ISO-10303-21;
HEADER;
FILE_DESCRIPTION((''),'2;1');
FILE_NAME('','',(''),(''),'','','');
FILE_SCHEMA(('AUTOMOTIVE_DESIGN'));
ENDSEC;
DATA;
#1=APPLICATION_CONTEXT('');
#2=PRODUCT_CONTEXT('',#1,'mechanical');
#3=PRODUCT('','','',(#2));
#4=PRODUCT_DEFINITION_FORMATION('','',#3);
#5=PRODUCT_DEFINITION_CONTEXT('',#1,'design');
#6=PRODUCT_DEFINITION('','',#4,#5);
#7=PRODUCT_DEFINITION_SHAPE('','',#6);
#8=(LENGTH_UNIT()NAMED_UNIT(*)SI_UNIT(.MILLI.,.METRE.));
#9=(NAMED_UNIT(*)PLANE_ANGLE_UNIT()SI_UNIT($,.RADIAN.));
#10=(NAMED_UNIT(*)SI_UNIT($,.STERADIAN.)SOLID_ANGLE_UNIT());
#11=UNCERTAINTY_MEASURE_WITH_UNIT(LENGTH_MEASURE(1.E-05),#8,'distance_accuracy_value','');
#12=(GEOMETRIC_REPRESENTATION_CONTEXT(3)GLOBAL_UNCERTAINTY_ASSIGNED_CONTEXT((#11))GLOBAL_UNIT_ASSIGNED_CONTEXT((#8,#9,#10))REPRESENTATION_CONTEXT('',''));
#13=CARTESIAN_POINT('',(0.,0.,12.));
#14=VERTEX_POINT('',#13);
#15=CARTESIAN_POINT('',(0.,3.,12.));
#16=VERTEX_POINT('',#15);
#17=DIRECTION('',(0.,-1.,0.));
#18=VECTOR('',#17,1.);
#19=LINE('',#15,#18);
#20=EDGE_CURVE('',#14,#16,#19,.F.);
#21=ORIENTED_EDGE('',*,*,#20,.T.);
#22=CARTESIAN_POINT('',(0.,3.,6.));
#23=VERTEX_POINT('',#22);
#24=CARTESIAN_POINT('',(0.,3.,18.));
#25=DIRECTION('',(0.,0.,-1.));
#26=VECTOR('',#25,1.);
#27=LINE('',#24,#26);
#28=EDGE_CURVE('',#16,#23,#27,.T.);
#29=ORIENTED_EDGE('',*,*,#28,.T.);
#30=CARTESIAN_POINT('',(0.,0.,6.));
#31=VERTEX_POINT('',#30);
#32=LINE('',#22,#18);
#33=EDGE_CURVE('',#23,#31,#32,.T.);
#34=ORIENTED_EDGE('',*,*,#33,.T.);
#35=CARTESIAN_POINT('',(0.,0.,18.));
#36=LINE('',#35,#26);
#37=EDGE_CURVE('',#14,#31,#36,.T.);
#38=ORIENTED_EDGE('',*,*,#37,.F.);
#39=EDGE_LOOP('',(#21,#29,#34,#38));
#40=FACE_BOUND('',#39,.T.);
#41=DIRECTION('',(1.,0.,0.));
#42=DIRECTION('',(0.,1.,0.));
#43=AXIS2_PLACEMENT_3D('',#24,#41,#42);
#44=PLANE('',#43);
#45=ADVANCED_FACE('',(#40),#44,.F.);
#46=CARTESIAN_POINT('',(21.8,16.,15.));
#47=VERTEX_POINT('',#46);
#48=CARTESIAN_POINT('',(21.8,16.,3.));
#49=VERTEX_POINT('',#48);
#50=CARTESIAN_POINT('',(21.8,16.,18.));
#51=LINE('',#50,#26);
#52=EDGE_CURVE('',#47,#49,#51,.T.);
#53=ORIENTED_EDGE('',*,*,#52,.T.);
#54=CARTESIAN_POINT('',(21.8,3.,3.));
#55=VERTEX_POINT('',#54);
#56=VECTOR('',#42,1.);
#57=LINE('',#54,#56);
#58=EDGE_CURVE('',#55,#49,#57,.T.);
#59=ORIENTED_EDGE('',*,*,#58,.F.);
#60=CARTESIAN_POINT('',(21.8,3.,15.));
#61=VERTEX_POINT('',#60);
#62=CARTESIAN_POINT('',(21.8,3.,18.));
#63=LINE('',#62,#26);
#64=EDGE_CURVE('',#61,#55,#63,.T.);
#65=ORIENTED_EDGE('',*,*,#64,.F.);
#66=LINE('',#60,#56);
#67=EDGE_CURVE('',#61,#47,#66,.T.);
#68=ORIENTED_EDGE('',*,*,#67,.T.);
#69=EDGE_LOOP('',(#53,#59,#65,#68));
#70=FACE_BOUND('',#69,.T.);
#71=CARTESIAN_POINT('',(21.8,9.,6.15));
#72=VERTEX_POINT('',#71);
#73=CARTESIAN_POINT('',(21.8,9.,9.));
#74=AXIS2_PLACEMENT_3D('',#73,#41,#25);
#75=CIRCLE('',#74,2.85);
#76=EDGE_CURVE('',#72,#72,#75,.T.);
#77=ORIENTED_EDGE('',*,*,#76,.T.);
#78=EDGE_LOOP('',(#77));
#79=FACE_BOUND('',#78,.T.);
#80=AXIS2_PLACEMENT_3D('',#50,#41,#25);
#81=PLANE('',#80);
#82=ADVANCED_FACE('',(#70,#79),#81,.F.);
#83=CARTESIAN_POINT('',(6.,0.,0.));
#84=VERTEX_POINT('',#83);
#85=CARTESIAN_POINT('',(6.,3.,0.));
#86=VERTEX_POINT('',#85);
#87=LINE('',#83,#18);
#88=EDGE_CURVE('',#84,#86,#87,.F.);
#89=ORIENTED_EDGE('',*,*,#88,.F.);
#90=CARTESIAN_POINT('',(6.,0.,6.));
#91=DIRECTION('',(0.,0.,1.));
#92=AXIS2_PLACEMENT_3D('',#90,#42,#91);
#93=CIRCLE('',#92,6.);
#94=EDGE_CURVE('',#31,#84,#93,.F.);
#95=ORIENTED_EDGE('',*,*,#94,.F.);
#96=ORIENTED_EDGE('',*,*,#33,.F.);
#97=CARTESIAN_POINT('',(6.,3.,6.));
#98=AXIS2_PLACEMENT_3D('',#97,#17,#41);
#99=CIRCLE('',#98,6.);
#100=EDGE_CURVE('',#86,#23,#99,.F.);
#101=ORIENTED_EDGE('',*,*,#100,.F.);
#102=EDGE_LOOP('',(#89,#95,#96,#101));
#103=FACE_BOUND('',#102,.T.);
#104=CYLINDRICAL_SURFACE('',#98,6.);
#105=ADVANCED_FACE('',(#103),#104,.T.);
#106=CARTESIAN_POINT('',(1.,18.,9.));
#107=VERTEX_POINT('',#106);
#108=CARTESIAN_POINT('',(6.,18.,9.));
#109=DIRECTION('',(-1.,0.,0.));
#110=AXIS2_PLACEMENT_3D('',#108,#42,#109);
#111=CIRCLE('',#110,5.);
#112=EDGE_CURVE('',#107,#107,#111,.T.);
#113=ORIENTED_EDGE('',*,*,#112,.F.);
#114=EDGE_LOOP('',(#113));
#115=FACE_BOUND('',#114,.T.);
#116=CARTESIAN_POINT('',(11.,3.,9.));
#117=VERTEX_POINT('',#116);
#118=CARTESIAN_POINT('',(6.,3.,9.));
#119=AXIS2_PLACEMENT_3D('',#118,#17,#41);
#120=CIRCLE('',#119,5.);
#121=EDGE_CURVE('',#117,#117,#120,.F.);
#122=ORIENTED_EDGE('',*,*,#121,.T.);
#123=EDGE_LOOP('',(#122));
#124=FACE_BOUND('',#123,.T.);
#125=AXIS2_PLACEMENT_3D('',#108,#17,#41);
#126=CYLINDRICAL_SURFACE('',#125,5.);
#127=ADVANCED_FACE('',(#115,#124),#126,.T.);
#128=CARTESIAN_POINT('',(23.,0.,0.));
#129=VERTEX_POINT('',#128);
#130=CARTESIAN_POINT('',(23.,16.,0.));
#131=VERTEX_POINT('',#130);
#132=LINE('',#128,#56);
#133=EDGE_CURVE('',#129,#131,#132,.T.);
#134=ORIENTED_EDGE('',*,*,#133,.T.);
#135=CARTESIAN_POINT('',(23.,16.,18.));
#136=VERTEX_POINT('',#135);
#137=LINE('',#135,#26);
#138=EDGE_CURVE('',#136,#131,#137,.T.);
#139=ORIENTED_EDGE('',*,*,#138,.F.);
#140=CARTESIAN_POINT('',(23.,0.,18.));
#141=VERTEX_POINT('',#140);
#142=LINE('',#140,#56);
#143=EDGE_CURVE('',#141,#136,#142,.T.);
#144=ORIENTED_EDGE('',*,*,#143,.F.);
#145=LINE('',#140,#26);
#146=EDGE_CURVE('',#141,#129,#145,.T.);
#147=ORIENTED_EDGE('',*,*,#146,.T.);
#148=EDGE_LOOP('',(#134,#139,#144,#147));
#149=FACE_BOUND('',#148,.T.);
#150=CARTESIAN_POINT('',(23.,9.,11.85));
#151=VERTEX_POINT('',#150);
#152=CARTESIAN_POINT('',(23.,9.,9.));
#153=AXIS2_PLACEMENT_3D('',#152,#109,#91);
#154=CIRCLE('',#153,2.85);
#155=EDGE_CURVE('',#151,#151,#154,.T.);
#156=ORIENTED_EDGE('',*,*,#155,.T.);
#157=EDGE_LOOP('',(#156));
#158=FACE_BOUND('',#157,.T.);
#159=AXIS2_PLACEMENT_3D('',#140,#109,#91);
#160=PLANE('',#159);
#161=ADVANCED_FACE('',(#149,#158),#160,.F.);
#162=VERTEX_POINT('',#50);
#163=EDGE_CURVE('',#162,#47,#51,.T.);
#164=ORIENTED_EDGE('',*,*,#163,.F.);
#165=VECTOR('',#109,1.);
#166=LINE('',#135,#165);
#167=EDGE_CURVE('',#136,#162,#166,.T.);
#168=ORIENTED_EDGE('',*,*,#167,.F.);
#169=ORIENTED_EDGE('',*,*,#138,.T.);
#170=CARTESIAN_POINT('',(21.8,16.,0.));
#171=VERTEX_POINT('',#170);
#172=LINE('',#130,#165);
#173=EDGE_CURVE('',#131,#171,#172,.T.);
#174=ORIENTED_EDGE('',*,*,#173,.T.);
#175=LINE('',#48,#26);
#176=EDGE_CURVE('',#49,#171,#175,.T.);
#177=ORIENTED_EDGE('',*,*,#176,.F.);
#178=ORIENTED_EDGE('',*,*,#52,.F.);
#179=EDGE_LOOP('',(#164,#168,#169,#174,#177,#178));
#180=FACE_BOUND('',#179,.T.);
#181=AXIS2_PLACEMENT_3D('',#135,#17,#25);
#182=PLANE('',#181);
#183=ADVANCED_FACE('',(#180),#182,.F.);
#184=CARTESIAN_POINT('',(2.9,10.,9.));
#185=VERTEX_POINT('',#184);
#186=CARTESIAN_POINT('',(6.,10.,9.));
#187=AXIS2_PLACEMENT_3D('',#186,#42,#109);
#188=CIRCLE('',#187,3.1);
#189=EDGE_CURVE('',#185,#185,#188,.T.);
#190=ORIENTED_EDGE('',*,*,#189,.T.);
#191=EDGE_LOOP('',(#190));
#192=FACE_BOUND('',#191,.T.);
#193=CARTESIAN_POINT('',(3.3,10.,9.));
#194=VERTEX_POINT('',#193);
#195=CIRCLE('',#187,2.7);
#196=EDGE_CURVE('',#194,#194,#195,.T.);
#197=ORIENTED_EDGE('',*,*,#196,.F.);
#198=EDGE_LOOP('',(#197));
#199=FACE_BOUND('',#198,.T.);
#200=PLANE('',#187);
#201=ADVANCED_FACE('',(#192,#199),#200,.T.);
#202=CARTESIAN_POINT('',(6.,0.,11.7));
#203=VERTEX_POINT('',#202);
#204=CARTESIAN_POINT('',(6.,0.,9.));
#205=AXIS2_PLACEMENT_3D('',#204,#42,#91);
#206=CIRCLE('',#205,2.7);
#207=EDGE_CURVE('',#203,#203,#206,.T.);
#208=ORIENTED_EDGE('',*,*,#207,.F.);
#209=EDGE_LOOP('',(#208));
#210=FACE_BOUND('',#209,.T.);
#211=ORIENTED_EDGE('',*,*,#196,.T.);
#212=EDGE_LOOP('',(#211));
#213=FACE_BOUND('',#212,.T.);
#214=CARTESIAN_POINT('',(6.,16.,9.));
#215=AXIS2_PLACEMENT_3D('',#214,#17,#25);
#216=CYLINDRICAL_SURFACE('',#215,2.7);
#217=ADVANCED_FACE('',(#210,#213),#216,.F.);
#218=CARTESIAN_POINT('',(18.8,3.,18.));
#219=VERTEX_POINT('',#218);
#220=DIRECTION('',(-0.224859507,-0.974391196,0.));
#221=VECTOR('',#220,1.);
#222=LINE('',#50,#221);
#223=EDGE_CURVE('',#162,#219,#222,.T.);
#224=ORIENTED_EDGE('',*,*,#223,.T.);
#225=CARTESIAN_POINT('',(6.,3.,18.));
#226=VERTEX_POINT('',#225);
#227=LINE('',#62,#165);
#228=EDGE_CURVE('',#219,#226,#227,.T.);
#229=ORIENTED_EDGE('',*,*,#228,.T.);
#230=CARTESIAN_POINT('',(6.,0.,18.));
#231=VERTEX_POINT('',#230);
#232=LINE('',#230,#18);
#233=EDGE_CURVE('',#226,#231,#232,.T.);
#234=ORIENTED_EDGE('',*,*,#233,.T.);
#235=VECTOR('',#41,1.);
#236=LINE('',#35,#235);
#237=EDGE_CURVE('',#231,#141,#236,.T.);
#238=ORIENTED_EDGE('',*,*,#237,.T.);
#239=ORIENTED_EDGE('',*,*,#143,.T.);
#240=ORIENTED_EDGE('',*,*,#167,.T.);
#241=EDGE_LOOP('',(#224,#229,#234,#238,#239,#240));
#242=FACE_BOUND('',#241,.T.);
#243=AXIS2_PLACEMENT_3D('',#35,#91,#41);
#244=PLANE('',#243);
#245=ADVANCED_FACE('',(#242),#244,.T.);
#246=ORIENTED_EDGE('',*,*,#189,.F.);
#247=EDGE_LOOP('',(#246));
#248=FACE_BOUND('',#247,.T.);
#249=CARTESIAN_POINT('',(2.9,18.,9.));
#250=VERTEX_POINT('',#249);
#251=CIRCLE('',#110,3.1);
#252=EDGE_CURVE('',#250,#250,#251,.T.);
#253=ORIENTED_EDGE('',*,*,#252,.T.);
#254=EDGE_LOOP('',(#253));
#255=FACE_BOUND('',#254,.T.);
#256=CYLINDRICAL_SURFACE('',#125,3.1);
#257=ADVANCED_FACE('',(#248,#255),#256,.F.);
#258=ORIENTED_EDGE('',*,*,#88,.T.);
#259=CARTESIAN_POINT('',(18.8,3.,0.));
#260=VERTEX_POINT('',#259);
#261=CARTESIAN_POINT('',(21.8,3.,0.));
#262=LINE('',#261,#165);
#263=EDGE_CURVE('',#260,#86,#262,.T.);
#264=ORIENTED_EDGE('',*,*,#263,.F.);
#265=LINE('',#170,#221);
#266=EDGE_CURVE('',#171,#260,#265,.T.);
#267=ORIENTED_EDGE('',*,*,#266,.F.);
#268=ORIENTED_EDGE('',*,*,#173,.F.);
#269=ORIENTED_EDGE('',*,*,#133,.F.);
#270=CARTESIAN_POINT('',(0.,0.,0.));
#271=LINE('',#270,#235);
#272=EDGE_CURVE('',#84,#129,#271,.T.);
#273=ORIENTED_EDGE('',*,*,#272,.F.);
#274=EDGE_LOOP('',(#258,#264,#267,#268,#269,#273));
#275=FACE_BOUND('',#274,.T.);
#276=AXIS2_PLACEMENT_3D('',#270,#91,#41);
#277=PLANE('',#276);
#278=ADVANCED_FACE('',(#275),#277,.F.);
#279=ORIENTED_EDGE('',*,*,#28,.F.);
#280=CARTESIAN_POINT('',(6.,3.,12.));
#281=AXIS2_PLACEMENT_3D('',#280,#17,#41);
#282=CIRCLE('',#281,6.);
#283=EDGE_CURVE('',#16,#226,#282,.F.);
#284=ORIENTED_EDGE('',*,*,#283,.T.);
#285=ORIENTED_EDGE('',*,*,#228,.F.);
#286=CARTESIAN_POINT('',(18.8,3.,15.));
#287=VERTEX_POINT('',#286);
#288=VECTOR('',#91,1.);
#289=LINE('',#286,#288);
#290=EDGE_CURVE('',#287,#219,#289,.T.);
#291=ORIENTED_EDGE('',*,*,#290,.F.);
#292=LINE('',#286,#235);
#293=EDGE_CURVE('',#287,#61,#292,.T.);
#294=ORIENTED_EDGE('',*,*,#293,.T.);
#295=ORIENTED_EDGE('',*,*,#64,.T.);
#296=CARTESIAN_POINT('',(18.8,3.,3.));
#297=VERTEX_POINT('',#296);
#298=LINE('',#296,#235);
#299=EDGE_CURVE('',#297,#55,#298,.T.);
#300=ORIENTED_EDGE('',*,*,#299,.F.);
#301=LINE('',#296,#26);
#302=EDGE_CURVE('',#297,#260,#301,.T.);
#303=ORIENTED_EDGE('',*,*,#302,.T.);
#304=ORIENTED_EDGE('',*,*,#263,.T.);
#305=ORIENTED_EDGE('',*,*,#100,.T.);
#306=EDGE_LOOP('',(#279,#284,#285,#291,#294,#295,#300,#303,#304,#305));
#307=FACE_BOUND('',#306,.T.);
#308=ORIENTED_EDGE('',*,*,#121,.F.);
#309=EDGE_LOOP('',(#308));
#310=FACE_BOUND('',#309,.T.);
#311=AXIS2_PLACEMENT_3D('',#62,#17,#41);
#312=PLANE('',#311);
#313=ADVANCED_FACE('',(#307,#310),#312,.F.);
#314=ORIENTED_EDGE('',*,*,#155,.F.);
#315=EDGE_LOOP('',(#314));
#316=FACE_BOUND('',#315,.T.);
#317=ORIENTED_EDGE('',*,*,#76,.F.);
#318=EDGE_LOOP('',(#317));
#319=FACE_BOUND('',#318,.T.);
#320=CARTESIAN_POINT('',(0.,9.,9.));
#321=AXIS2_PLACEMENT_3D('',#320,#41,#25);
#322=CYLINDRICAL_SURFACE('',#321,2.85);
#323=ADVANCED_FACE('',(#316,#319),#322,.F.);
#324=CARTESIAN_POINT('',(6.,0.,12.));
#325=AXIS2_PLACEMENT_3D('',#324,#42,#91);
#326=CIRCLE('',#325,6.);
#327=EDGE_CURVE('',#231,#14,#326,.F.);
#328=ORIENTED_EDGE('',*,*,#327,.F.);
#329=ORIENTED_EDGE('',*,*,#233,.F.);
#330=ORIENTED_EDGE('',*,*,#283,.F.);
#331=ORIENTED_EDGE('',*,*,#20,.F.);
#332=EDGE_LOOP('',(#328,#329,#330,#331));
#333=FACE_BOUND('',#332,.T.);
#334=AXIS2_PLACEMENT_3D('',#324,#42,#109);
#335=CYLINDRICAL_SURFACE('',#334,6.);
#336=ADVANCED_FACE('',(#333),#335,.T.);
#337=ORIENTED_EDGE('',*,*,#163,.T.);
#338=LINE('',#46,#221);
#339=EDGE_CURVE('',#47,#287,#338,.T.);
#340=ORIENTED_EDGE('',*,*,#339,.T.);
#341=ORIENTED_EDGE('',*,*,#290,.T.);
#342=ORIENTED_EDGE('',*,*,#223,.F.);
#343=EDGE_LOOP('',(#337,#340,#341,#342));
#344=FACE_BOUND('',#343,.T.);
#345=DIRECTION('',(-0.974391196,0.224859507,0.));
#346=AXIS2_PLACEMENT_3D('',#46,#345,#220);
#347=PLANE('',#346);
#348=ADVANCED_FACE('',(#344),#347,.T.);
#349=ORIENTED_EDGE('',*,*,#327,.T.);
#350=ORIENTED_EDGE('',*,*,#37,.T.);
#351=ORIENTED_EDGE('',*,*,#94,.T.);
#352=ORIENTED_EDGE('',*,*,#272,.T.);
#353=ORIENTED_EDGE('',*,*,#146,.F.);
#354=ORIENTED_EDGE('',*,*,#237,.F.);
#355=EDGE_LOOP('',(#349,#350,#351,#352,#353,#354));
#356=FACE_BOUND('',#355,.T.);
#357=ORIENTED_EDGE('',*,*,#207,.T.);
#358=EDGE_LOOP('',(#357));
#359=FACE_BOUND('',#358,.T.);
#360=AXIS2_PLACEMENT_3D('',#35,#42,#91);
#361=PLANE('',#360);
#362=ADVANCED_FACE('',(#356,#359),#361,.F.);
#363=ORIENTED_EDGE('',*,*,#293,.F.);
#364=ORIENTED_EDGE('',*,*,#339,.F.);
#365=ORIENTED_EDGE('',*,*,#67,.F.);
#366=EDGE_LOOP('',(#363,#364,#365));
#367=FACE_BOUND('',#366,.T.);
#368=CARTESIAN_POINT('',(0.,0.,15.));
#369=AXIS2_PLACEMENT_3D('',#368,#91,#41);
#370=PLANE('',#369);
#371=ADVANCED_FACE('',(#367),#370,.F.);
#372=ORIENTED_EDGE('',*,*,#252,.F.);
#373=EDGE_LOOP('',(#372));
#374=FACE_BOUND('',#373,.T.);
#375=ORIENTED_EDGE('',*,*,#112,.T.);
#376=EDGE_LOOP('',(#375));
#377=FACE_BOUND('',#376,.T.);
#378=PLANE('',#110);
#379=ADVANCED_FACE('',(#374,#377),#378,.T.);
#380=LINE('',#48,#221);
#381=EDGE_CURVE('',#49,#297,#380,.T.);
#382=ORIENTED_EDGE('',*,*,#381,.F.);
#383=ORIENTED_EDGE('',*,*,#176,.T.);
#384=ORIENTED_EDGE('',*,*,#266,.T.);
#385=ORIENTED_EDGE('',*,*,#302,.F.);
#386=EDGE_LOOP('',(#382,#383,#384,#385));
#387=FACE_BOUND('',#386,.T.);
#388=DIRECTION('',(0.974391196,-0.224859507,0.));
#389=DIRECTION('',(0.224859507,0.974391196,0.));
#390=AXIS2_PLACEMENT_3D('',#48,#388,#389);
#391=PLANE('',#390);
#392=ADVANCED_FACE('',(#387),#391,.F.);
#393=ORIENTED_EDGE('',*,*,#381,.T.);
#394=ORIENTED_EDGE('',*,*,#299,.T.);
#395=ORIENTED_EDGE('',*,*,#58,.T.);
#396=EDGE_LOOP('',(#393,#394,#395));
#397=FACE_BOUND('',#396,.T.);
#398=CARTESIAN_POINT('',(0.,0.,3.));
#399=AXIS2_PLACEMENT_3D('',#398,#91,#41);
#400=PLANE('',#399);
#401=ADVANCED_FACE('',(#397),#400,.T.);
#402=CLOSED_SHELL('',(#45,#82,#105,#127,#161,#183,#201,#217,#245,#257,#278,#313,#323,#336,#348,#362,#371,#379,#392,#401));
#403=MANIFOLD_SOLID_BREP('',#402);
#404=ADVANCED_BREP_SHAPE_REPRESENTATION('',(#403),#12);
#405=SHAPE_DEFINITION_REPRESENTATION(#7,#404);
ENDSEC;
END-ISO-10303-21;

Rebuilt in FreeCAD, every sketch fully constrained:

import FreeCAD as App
import Part
import Sketcher


def edges_at(feature, points):
    """Names of the edges that pass closest to the given points."""
    edges = feature.Shape.Edges
    near = lambda p: min(range(len(edges)), key=lambda i: edges[i].distToShape(Part.Vertex(*p))[0])
    return sorted({f"Edge{near(p) + 1}" for p in points})


def add_polygon(sketch, points):
    """Adds a closed chain of lines whose ends are joined by coincident constraints."""
    first, n = sketch.GeometryCount, len(points)
    for a, b in zip(points, points[1:] + points[:1]):
        sketch.addGeometry(Part.LineSegment(App.Vector(*a, 0), App.Vector(*b, 0)), False)
    for i in range(n):
        sketch.addConstraint(Sketcher.Constraint("Coincident", first + i, 2, first + (i + 1) % n, 1))

doc = App.newDocument("Part")
params = doc.addObject("Spreadsheet::Sheet", "Params")
for row, (alias, value) in enumerate([
    ("sketch1_width", "23 mm"),
    ("sketch1_height", "16 mm"),
    ("sketch1_height2", "13 mm"),
    ("sketch1_width2", "1.2 mm"),
    ("pad1_length", "18 mm"),
    ("sketch2_diameter", "5.7 mm"),
    ("sketch3_diameter", "5.4 mm"),
    ("sketch4_width", "3 mm"),
    ("sketch4_height", "13 mm"),
    ("pad2_length", "3 mm"),
    ("sketch5_width", "3 mm"),
    ("sketch5_height", "13 mm"),
    ("pad3_length", "3 mm"),
    ("fillet_radius", "6 mm"),
    ("sketch6_diameter", "10 mm"),
    ("sketch6_diameter2", "6.2 mm"),
    ("pad4_length", "15 mm"),
    ("sketch7_diameter", "6.2 mm"),
    ("sketch7_diameter2", "5.4 mm"),
    ("pad5_length", "7 mm"),
], start=1):
    params.set(f"A{row}", alias)
    params.set(f"B{row}", "=" + value)
    params.setAlias(f"B{row}", alias)

body = doc.addObject("PartDesign::Body", "Body")

# Sketch on XY plane
sketch1 = body.newObject("Sketcher::SketchObject", "Sketch")
sketch1.AttachmentSupport = (doc.getObject("XY_Plane"), [""])
sketch1.MapMode = "FlatFace"
add_polygon(sketch1, [(0, 0), (23, 0), (23, 16), (21.8, 16), (21.8, 3), (0, 3)])  # lines 0-5
sketch1.addConstraint(Sketcher.Constraint("Horizontal", 0))
sketch1.addConstraint(Sketcher.Constraint("Vertical", 1))
sketch1.addConstraint(Sketcher.Constraint("Horizontal", 2))
sketch1.addConstraint(Sketcher.Constraint("Vertical", 3))
sketch1.addConstraint(Sketcher.Constraint("Horizontal", 4))
sketch1.addConstraint(Sketcher.Constraint("Vertical", 5))
sketch1.addConstraint(Sketcher.Constraint("Coincident", 5, 2, -1, 1))
sketch1.addConstraint(Sketcher.Constraint("DistanceX", 0, 1, 0, 2, 23.0))
sketch1.addConstraint(Sketcher.Constraint("DistanceY", 1, 1, 1, 2, 16.0))
sketch1.addConstraint(Sketcher.Constraint("DistanceY", 3, 2, 3, 1, 13.0))
sketch1.addConstraint(Sketcher.Constraint("DistanceX", 2, 2, 2, 1, 1.2))
sketch1.setExpression("Constraints[13]", "Params.sketch1_width")
sketch1.setExpression("Constraints[14]", "Params.sketch1_height")
sketch1.setExpression("Constraints[15]", "Params.sketch1_height2")
sketch1.setExpression("Constraints[16]", "Params.sketch1_width2")
pad1 = body.newObject("PartDesign::Pad", "Pad")
pad1.Profile = sketch1
pad1.setExpression("Length", "Params.pad1_length")

# Sketch on YZ plane
sketch2 = body.newObject("Sketcher::SketchObject", "Sketch001")
sketch2.AttachmentSupport = (doc.getObject("YZ_Plane"), [""])
sketch2.MapMode = "FlatFace"
sketch2.AttachmentOffset = App.Placement(App.Vector(0, 0, 23), App.Rotation())
sketch2.addGeometry(Part.Circle(App.Vector(9, 9, 0), App.Vector(0, 0, 1), 2.85), False)
sketch2.addConstraint(Sketcher.Constraint("Diameter", 0, 5.7))
sketch2.addConstraint(Sketcher.Constraint("DistanceX", -1, 1, 0, 3, 9.0))
sketch2.addConstraint(Sketcher.Constraint("DistanceY", -1, 1, 0, 3, 9.0))
sketch2.setExpression("Constraints[0]", "Params.sketch2_diameter")
pocket1 = body.newObject("PartDesign::Pocket", "Pocket")
pocket1.Profile = sketch2
pocket1.Type = "ThroughAll"
pocket1.Midplane = True

# Sketch on XZ plane
sketch3 = body.newObject("Sketcher::SketchObject", "Sketch002")
sketch3.AttachmentSupport = (doc.getObject("XZ_Plane"), [""])
sketch3.MapMode = "FlatFace"
sketch3.addGeometry(Part.Circle(App.Vector(6, 9, 0), App.Vector(0, 0, 1), 2.7), False)
sketch3.addConstraint(Sketcher.Constraint("Diameter", 0, 5.4))
sketch3.addConstraint(Sketcher.Constraint("DistanceX", -1, 1, 0, 3, 6.0))
sketch3.addConstraint(Sketcher.Constraint("DistanceY", -1, 1, 0, 3, 9.0))
sketch3.setExpression("Constraints[0]", "Params.sketch3_diameter")
pocket2 = body.newObject("PartDesign::Pocket", "Pocket001")
pocket2.Profile = sketch3
pocket2.Type = "ThroughAll"
pocket2.Midplane = True

# Sketch on XY plane
sketch4 = body.newObject("Sketcher::SketchObject", "Sketch003")
sketch4.AttachmentSupport = (doc.getObject("XY_Plane"), [""])
sketch4.MapMode = "FlatFace"
sketch4.AttachmentOffset = App.Placement(App.Vector(0, 0, 18), App.Rotation())
add_polygon(sketch4, [(21.8, 3), (21.8, 16), (18.8, 3)])  # lines 0-2
sketch4.addConstraint(Sketcher.Constraint("Vertical", 0))
sketch4.addConstraint(Sketcher.Constraint("Horizontal", 2))
sketch4.addConstraint(Sketcher.Constraint("DistanceX", 2, 1, 2, 2, 3.0))
sketch4.addConstraint(Sketcher.Constraint("DistanceY", 0, 1, 0, 2, 13.0))
sketch4.addConstraint(Sketcher.Constraint("DistanceY", -1, 1, 0, 2, 16.0))
sketch4.addConstraint(Sketcher.Constraint("DistanceX", -1, 1, 0, 2, 21.8))
sketch4.setExpression("Constraints[5]", "Params.sketch4_width")
sketch4.setExpression("Constraints[6]", "Params.sketch4_height")
pad2 = body.newObject("PartDesign::Pad", "Pad001")
pad2.Profile = sketch4
pad2.setExpression("Length", "Params.pad2_length")
pad2.Reversed = True

# Sketch on XY plane
sketch5 = body.newObject("Sketcher::SketchObject", "Sketch004")
sketch5.AttachmentSupport = (doc.getObject("XY_Plane"), [""])
sketch5.MapMode = "FlatFace"
add_polygon(sketch5, [(21.8, 3), (21.8, 16), (18.8, 3)])  # lines 0-2
sketch5.addConstraint(Sketcher.Constraint("Vertical", 0))
sketch5.addConstraint(Sketcher.Constraint("Horizontal", 2))
sketch5.addConstraint(Sketcher.Constraint("DistanceX", 2, 1, 2, 2, 3.0))
sketch5.addConstraint(Sketcher.Constraint("DistanceY", 0, 1, 0, 2, 13.0))
sketch5.addConstraint(Sketcher.Constraint("DistanceY", -1, 1, 0, 2, 16.0))
sketch5.addConstraint(Sketcher.Constraint("DistanceX", -1, 1, 0, 2, 21.8))
sketch5.setExpression("Constraints[5]", "Params.sketch5_width")
sketch5.setExpression("Constraints[6]", "Params.sketch5_height")
pad3 = body.newObject("PartDesign::Pad", "Pad002")
pad3.Profile = sketch5
pad3.setExpression("Length", "Params.pad3_length")
doc.recompute()

fillet = body.newObject("PartDesign::Fillet", "Fillet")
fillet.Base = (pad3, edges_at(pad3, [(0, 1.5, 18), (0, 1.5, 0)]))
fillet.setExpression("Radius", "Params.fillet_radius")

# Sketch on XZ plane
sketch6 = body.newObject("Sketcher::SketchObject", "Sketch005")
sketch6.AttachmentSupport = (doc.getObject("XZ_Plane"), [""])
sketch6.MapMode = "FlatFace"
sketch6.AttachmentOffset = App.Placement(App.Vector(0, 0, -3), App.Rotation())
sketch6.addGeometry(Part.Circle(App.Vector(6, 9, 0), App.Vector(0, 0, 1), 5), False)
sketch6.addGeometry(Part.Circle(App.Vector(6, 9, 0), App.Vector(0, 0, 1), 3.1), False)
sketch6.addConstraint(Sketcher.Constraint("Coincident", 1, 3, 0, 3))
sketch6.addConstraint(Sketcher.Constraint("Diameter", 0, 10.0))
sketch6.addConstraint(Sketcher.Constraint("Diameter", 1, 6.2))
sketch6.addConstraint(Sketcher.Constraint("DistanceX", -1, 1, 0, 3, 6.0))
sketch6.addConstraint(Sketcher.Constraint("DistanceY", -1, 1, 0, 3, 9.0))
sketch6.setExpression("Constraints[1]", "Params.sketch6_diameter")
sketch6.setExpression("Constraints[2]", "Params.sketch6_diameter2")
pad4 = body.newObject("PartDesign::Pad", "Pad003")
pad4.Profile = sketch6
pad4.setExpression("Length", "Params.pad4_length")
pad4.Reversed = True

# Sketch on XZ plane
sketch7 = body.newObject("Sketcher::SketchObject", "Sketch006")
sketch7.AttachmentSupport = (doc.getObject("XZ_Plane"), [""])
sketch7.MapMode = "FlatFace"
sketch7.AttachmentOffset = App.Placement(App.Vector(0, 0, -3), App.Rotation())
sketch7.addGeometry(Part.Circle(App.Vector(6, 9, 0), App.Vector(0, 0, 1), 3.1), False)
sketch7.addGeometry(Part.Circle(App.Vector(6, 9, 0), App.Vector(0, 0, 1), 2.7), False)
sketch7.addConstraint(Sketcher.Constraint("Coincident", 1, 3, 0, 3))
sketch7.addConstraint(Sketcher.Constraint("Diameter", 0, 6.2))
sketch7.addConstraint(Sketcher.Constraint("Diameter", 1, 5.4))
sketch7.addConstraint(Sketcher.Constraint("DistanceX", -1, 1, 0, 3, 6.0))
sketch7.addConstraint(Sketcher.Constraint("DistanceY", -1, 1, 0, 3, 9.0))
sketch7.setExpression("Constraints[1]", "Params.sketch7_diameter")
sketch7.setExpression("Constraints[2]", "Params.sketch7_diameter2")
pad5 = body.newObject("PartDesign::Pad", "Pad004")
pad5.Profile = sketch7
pad5.setExpression("Length", "Params.pad5_length")
pad5.Reversed = True

doc.recompute()
